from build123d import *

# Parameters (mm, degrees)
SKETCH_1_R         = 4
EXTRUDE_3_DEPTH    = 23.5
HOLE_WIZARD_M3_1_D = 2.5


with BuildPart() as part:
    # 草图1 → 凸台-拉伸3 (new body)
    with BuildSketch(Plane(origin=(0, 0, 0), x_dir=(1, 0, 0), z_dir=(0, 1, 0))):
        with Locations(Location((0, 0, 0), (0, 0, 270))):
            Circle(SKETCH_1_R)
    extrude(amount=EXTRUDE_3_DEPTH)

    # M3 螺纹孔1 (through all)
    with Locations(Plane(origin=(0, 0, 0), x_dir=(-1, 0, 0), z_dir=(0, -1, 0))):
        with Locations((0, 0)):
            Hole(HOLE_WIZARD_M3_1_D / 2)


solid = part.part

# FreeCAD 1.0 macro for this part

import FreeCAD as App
import Part
import Sketcher

doc = App.newDocument("Part")
params = doc.addObject("Spreadsheet::Sheet", "Params")
for row, (alias, value) in enumerate([
    ("sketch1_diameter", "8 mm"),
    ("pad1_length", "23.5 mm"),
    ("sketch2_diameter", "2.5 mm"),
    ("hole_diameter", "2.5 mm"),
], start=1):
    params.set(f"A{row}", alias)
    params.set(f"B{row}", "=" + value)
    params.setAlias(f"B{row}", alias)

body = doc.addObject("PartDesign::Body", "Body")

sketch1 = body.newObject("Sketcher::SketchObject", "Sketch")
sketch1.AttachmentSupport = (doc.getObject("XZ_Plane"), [""])
sketch1.MapMode = "FlatFace"
sketch1.addGeometry(Part.Circle(App.Vector(0, 0, 0), App.Vector(0, 0, 1), 4), False)
sketch1.addConstraint([
    Sketcher.Constraint("Coincident", 0, 3, -1, 1),
    Sketcher.Constraint("Diameter", 0, 8.0),
])
sketch1.setExpression("Constraints[1]", "Params.sketch1_diameter")
pad1 = body.newObject("PartDesign::Pad", "Pad")
pad1.Profile = sketch1
pad1.setExpression("Length", "Params.pad1_length")
pad1.Reversed = True

sketch2 = body.newObject("Sketcher::SketchObject", "Sketch001")
sketch2.AttachmentSupport = (doc.getObject("XZ_Plane"), [""])
sketch2.MapMode = "FlatFace"
sketch2.addGeometry(Part.Circle(App.Vector(0, 0, 0), App.Vector(0, 0, 1), 1.25), False)
sketch2.addConstraint([
    Sketcher.Constraint("Coincident", 0, 3, -1, 1),
    Sketcher.Constraint("Diameter", 0, 2.5),
])
sketch2.setExpression("Constraints[1]", "Params.sketch2_diameter")
doc.recompute()
hole = body.newObject("PartDesign::Hole", "Hole")
hole.Profile = sketch2
hole.ThreadType = "None"
hole.setExpression("Diameter", "Params.hole_diameter")
hole.DepthType = "ThroughAll"

doc.recompute()
